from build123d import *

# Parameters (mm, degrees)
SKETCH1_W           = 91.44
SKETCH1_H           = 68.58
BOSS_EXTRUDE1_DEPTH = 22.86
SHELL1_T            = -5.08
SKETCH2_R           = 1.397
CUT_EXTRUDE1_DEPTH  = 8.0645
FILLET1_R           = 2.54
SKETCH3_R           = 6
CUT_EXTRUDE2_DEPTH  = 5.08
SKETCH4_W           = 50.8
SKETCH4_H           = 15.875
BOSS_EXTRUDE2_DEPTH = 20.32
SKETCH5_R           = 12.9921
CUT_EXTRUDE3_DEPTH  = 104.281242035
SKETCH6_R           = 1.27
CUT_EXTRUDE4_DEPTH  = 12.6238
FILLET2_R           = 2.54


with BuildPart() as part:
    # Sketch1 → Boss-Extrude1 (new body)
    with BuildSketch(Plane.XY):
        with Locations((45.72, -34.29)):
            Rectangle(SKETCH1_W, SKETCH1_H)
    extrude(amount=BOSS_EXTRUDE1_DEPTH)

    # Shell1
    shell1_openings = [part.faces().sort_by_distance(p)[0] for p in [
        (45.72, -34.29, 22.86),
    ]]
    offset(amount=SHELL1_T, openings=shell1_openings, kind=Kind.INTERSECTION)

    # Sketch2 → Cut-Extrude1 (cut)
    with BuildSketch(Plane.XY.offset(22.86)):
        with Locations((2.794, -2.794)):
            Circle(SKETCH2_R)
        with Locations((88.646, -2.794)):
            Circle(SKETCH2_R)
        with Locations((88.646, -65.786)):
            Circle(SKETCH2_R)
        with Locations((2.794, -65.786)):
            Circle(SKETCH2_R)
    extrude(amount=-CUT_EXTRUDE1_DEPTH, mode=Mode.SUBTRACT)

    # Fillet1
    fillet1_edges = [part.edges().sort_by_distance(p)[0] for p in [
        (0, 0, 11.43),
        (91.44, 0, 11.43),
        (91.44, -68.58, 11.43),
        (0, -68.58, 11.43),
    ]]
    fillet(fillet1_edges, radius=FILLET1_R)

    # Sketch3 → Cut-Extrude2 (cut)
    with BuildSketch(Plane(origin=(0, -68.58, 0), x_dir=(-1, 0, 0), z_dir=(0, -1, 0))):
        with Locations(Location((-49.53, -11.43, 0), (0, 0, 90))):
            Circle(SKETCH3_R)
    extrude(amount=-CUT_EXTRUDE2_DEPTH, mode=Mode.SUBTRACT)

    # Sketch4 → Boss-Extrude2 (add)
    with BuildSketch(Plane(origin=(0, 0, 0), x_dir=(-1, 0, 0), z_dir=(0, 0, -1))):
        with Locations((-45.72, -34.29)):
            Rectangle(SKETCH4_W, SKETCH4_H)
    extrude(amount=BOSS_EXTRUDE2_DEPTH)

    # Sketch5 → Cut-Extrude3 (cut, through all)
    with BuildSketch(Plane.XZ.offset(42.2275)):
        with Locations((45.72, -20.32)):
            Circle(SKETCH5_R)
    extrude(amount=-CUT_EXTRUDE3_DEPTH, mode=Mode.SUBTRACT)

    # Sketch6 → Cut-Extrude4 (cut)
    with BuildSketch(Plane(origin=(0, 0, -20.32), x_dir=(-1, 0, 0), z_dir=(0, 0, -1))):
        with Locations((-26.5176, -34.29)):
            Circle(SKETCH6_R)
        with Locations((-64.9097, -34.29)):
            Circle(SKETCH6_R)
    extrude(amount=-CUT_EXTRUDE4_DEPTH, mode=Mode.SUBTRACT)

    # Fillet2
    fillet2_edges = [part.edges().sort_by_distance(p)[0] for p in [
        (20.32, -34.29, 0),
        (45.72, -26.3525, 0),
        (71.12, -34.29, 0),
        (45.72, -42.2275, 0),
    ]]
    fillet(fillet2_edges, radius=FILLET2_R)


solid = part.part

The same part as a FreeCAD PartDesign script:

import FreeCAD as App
import Part
import Sketcher
Q = App.Units.Quantity


def edges_at(feature, points):
    """Names of the edges that pass closest to the given points."""
    edges = feature.Shape.Edges
    near = lambda p: min(range(len(edges)), key=lambda i: edges[i].distToShape(Part.Vertex(*p))[0])
    return sorted({f"Edge{near(p) + 1}" for p in points})


def faces_at(feature, points):
    """Names of the faces that lie closest to the given points."""
    faces = feature.Shape.Faces
    near = lambda p: min(range(len(faces)), key=lambda i: faces[i].distToShape(Part.Vertex(*p))[0])
    return sorted({f"Face{near(p) + 1}" for p in points})

doc = App.newDocument("Part")
body = doc.addObject("PartDesign::Body", "Body")

sketch1 = body.newObject("Sketcher::SketchObject", "Sketch")
sketch1.AttachmentSupport = (doc.getObject("XY_Plane"), [""])
sketch1.MapMode = "FlatFace"
sketch1.addGeometry([
    Part.LineSegment(App.Vector(0, 0, 0), App.Vector(0, -69, 0)),
    Part.LineSegment(App.Vector(0, -69, 0), App.Vector(91, -69, 0)),
    Part.LineSegment(App.Vector(91, -69, 0), App.Vector(91, 0, 0)),
    Part.LineSegment(App.Vector(91, 0, 0), App.Vector(0, 0, 0)),
], False)
sketch1.addConstraint([
    Sketcher.Constraint("Coincident", 0, 2, 1, 1),
    Sketcher.Constraint("Coincident", 1, 2, 2, 1),
    Sketcher.Constraint("Coincident", 2, 2, 3, 1),
    Sketcher.Constraint("Coincident", 3, 2, 0, 1),
    Sketcher.Constraint("Vertical", 0),
    Sketcher.Constraint("Horizontal", 1),
    Sketcher.Constraint("Vertical", 2),
    Sketcher.Constraint("Horizontal", 3),
    Sketcher.Constraint("Coincident", 3, 2, -1, 1),
    Sketcher.Constraint("DistanceX", 1, 1, 1, 2, Q("3.6 in")),
    Sketcher.Constraint("DistanceY", 0, 2, 0, 1, Q("2.7 in")),
])
pad1 = body.newObject("PartDesign::Pad", "Pad")
pad1.Profile = sketch1
pad1.Length = Q("0.9 in")
doc.recompute()

thickness = body.newObject("PartDesign::Thickness", "Thickness")
thickness.Base = (pad1, faces_at(pad1, [(45.72, -34.29, 22.86)]))
thickness.Value = Q("0.2 in")
thickness.Reversed = True
thickness.Join = "Intersection"

sketch2 = body.newObject("Sketcher::SketchObject", "Sketch001")
sketch2.AttachmentSupport = (doc.getObject("XY_Plane"), [""])
sketch2.MapMode = "FlatFace"
sketch2.AttachmentOffset = App.Placement(App.Vector(0, 0, 0.9 * 25.4), App.Rotation())
sketch2.addGeometry([
    Part.Circle(App.Vector(2.8, -2.8, 0), App.Vector(0, 0, 1), 1.4),
    Part.Circle(App.Vector(88.6, -2.8, 0), App.Vector(0, 0, 1), 1.4),
    Part.Circle(App.Vector(88.6, -65.8, 0), App.Vector(0, 0, 1), 1.4),
    Part.Circle(App.Vector(2.8, -65.8, 0), App.Vector(0, 0, 1), 1.4),
], False)
sketch2.addConstraint([
    Sketcher.Constraint("Equal", 0, 1),
    Sketcher.Constraint("Equal", 1, 2),
    Sketcher.Constraint("Equal", 2, 3),
    Sketcher.Constraint("Horizontal", 0, 3, 1, 3),
    Sketcher.Constraint("Horizontal", 2, 3, 3, 3),
    Sketcher.Constraint("Vertical", 1, 3, 2, 3),
    Sketcher.Constraint("Vertical", 0, 3, 3, 3),
    Sketcher.Constraint("Diameter", 0, Q("0.11 in")),
    Sketcher.Constraint("DistanceX", -1, 1, 0, 3, Q("0.11 in")),
    Sketcher.Constraint("DistanceY", 0, 3, -1, 1, Q("0.11 in")),
    Sketcher.Constraint("DistanceX", -1, 1, 1, 3, Q("3.49 in")),
    Sketcher.Constraint("DistanceY", 2, 3, -1, 1, Q("2.59 in")),
])
pocket1 = body.newObject("PartDesign::Pocket", "Pocket")
pocket1.Profile = sketch2
pocket1.Length = Q("0.3175 in")
doc.recompute()

fillet = body.newObject("PartDesign::Fillet", "Fillet")
fillet.Base = (pocket1, edges_at(pocket1, [
    (0, 0, 11.43),
    (91.44, 0, 11.43),
    (91.44, -68.58, 11.43),
    (0, -68.58, 11.43),
]))
fillet.Radius = Q("0.1 in")

sketch3 = body.newObject("Sketcher::SketchObject", "Sketch002")
sketch3.AttachmentSupport = (doc.getObject("XZ_Plane"), [""])
sketch3.MapMode = "FlatFace"
sketch3.AttachmentOffset = App.Placement(App.Vector(0, 0, 2.7 * 25.4), App.Rotation())
sketch3.addGeometry(Part.Circle(App.Vector(50, 11, 0), App.Vector(0, 0, 1), 6), False)
sketch3.addConstraint([
    Sketcher.Constraint("Diameter", 0, Q("12 mm")),
    Sketcher.Constraint("DistanceX", -1, 1, 0, 3, Q("1.95 in")),
    Sketcher.Constraint("DistanceY", -1, 1, 0, 3, Q("0.45 in")),
])
pocket2 = body.newObject("PartDesign::Pocket", "Pocket001")
pocket2.Profile = sketch3
pocket2.Length = Q("0.2 in")

sketch4 = body.newObject("Sketcher::SketchObject", "Sketch003")
sketch4.AttachmentSupport = (doc.getObject("XY_Plane"), [""])
sketch4.MapMode = "FlatFace"
sketch4.addGeometry([
    Part.LineSegment(App.Vector(71, -26, 0), App.Vector(71, -42, 0)),
    Part.LineSegment(App.Vector(71, -42, 0), App.Vector(20, -42, 0)),
    Part.LineSegment(App.Vector(20, -42, 0), App.Vector(20, -26, 0)),
    Part.LineSegment(App.Vector(20, -26, 0), App.Vector(71, -26, 0)),
], False)
sketch4.addConstraint([
    Sketcher.Constraint("Coincident", 0, 2, 1, 1),
    Sketcher.Constraint("Coincident", 1, 2, 2, 1),
    Sketcher.Constraint("Coincident", 2, 2, 3, 1),
    Sketcher.Constraint("Coincident", 3, 2, 0, 1),
    Sketcher.Constraint("Vertical", 0),
    Sketcher.Constraint("Horizontal", 1),
    Sketcher.Constraint("Vertical", 2),
    Sketcher.Constraint("Horizontal", 3),
    Sketcher.Constraint("DistanceX", 1, 2, 1, 1, Q("2 in")),
    Sketcher.Constraint("DistanceX", -1, 1, 0, 2, Q("2.8 in")),
    Sketcher.Constraint("DistanceY", 0, 2, 0, 1, Q("0.625 in")),
    Sketcher.Constraint("DistanceY", 0, 2, -1, 1, Q("1.6625 in")),
])
pad2 = body.newObject("PartDesign::Pad", "Pad001")
pad2.Profile = sketch4
pad2.Length = Q("0.8 in")
pad2.Reversed = True

sketch5 = body.newObject("Sketcher::SketchObject", "Sketch004")
sketch5.AttachmentSupport = (doc.getObject("XZ_Plane"), [""])
sketch5.MapMode = "FlatFace"
sketch5.AttachmentOffset = App.Placement(App.Vector(0, 0, 1.6625 * 25.4), App.Rotation())
sketch5.addGeometry(Part.Circle(App.Vector(46, -20, 0), App.Vector(0, 0, 1), 13), False)
sketch5.addConstraint([
    Sketcher.Constraint("Diameter", 0, Q("1.023 in")),
    Sketcher.Constraint("DistanceX", -1, 1, 0, 3, Q("1.8 in")),
    Sketcher.Constraint("DistanceY", 0, 3, -1, 1, Q("0.8 in")),
])
pocket3 = body.newObject("PartDesign::Pocket", "Pocket002")
pocket3.Profile = sketch5
pocket3.Type = "ThroughAll"

sketch6 = body.newObject("Sketcher::SketchObject", "Sketch005")
sketch6.AttachmentSupport = (doc.getObject("XY_Plane"), [""])
sketch6.MapMode = "FlatFace"
sketch6.AttachmentOffset = App.Placement(App.Vector(0, 0, -0.8 * 25.4), App.Rotation())
sketch6.addGeometry([
    Part.Circle(App.Vector(26.5, -34.3, 0), App.Vector(0, 0, 1), 1.3),
    Part.Circle(App.Vector(64.9, -34.3, 0), App.Vector(0, 0, 1), 1.3),
], False)
sketch6.addConstraint([
    Sketcher.Constraint("Equal", 0, 1),
    Sketcher.Constraint("Horizontal", 0, 3, 1, 3),
    Sketcher.Constraint("Diameter", 0, Q("0.1 in")),
    Sketcher.Constraint("DistanceY", 0, 3, -1, 1, Q("1.35 in")),
    Sketcher.Constraint("DistanceX", -1, 1, 0, 3, Q("1.044 in")),
    Sketcher.Constraint("DistanceX", -1, 1, 1, 3, Q("2.5555 in")),
])
pocket4 = body.newObject("PartDesign::Pocket", "Pocket003")
pocket4.Profile = sketch6
pocket4.Length = Q("0.497 in")
pocket4.Reversed = True
doc.recompute()

fillet2 = body.newObject("PartDesign::Fillet", "Fillet001")
fillet2.Base = (pocket4, edges_at(pocket4, [
    (20.32, -34.29, 0),
    (45.72, -26.352, 0),
    (71.12, -34.29, 0),
    (45.72, -42.227, 0),
]))
fillet2.Radius = Q("0.1 in")

doc.recompute()
